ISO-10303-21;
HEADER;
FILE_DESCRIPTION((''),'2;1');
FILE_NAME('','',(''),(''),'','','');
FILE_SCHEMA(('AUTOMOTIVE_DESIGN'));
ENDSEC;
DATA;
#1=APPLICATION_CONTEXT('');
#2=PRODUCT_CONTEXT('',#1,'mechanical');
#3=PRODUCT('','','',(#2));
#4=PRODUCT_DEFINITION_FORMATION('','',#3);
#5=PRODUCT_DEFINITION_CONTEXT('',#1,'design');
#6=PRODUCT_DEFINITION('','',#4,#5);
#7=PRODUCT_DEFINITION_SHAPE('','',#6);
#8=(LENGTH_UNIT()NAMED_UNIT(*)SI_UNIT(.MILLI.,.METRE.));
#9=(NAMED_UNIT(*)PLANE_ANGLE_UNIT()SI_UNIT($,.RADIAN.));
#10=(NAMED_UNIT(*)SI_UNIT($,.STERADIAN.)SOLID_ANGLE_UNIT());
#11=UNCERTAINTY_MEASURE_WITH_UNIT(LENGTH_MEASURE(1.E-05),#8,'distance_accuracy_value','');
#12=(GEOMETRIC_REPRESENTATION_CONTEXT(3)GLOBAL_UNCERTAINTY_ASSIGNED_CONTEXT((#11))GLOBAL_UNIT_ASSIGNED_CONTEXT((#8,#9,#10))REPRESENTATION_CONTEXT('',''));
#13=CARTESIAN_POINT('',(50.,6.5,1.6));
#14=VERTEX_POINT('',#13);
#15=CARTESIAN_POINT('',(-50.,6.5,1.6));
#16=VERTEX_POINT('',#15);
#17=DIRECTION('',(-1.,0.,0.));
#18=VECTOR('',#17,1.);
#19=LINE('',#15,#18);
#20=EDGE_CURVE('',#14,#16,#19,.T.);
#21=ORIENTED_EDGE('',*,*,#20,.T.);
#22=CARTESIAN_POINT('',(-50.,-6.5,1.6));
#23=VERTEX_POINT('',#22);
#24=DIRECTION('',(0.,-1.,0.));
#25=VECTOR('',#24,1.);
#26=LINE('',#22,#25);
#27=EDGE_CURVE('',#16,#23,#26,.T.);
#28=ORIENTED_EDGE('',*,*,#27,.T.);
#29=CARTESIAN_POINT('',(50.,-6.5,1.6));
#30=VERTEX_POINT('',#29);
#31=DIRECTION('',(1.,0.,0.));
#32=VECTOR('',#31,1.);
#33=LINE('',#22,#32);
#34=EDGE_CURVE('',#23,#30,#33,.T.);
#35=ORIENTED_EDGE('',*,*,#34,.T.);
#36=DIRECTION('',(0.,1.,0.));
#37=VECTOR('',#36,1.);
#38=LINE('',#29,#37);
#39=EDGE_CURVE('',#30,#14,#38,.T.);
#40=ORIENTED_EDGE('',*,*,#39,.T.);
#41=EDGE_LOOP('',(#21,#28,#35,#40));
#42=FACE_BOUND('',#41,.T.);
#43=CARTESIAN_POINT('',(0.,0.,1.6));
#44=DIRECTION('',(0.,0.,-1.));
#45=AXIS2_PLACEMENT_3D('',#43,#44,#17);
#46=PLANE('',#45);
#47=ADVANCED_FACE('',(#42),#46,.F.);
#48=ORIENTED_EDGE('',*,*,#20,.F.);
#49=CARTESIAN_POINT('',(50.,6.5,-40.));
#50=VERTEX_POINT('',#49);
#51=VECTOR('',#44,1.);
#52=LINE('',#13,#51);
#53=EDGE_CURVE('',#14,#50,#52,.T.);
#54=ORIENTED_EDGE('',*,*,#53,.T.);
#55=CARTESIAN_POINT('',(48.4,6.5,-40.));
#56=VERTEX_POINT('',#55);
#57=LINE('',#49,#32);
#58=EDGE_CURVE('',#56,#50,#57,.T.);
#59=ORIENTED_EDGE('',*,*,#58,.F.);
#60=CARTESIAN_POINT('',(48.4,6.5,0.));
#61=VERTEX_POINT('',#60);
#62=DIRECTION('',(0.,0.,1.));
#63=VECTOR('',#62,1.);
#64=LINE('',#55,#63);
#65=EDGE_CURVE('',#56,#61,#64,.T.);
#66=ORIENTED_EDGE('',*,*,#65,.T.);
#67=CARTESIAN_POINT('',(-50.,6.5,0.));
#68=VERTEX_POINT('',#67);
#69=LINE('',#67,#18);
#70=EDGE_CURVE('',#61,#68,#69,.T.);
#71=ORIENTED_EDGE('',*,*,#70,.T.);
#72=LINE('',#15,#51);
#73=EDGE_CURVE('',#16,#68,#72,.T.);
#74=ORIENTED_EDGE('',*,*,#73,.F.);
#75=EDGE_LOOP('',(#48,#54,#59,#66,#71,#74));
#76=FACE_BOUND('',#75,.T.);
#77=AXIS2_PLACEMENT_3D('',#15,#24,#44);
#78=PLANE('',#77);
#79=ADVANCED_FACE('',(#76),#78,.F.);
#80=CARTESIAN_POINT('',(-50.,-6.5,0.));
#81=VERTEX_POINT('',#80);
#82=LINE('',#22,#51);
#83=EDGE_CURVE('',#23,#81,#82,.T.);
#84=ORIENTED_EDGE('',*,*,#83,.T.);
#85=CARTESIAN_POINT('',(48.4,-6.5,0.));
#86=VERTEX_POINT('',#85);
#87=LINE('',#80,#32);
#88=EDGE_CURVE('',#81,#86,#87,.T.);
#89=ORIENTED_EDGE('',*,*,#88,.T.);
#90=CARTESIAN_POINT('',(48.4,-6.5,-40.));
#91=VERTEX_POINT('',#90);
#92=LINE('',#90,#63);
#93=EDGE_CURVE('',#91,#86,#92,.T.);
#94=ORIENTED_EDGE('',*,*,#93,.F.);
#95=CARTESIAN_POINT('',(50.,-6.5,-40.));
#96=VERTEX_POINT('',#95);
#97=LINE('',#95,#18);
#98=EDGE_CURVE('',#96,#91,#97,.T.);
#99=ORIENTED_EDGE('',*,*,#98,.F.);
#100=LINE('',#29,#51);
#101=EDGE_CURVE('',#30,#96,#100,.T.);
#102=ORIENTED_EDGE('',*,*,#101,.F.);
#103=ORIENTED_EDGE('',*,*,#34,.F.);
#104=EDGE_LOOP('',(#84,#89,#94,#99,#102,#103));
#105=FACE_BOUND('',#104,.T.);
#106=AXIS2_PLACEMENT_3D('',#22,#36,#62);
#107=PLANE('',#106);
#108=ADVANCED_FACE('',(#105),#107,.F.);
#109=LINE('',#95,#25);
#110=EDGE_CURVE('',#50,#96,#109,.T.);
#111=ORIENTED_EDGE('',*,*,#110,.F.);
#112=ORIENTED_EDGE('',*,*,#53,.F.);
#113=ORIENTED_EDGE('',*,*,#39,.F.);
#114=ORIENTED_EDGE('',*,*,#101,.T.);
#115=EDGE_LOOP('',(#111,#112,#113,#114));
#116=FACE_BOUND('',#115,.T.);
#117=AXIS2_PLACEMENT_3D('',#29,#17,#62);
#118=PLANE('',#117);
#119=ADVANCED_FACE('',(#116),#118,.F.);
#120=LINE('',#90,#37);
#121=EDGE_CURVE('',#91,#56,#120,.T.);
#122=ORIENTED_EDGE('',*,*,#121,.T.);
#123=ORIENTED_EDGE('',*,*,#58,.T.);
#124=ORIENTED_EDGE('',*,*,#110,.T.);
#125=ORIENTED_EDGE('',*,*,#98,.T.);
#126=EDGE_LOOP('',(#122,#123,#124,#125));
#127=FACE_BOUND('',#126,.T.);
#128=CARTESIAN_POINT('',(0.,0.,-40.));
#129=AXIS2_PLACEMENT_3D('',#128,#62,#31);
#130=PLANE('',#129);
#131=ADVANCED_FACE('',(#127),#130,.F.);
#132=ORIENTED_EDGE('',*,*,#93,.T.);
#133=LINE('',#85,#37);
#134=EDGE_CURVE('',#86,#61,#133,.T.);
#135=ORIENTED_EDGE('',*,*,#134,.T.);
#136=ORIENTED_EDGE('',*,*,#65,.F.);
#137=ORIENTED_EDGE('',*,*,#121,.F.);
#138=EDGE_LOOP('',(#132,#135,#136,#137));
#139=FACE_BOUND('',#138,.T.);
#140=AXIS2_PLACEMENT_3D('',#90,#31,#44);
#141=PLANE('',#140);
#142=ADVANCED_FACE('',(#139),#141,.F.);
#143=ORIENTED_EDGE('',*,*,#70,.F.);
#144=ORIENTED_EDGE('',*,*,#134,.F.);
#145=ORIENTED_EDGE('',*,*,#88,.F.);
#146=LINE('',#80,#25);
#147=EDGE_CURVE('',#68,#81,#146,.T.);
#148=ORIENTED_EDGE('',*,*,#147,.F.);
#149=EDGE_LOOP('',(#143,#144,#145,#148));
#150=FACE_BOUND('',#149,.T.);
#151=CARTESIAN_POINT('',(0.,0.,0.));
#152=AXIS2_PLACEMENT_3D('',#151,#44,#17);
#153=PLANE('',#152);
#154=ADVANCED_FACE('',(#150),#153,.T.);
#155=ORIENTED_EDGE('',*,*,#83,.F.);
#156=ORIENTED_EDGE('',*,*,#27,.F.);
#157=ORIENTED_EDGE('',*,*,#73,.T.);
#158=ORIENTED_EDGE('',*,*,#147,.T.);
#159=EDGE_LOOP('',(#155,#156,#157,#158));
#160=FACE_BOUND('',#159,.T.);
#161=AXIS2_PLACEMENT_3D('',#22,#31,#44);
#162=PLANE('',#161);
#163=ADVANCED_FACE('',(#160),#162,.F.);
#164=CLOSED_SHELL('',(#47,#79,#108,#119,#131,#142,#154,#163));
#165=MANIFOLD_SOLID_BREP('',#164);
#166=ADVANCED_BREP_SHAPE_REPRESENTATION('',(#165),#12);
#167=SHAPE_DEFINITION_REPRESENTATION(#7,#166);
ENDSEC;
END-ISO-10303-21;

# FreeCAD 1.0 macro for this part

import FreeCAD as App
import Part
import Sketcher
from FreeCAD import Vector
Q = App.Units.Quantity

doc = App.newDocument("Part")
body = doc.addObject("PartDesign::Body", "Body")

# Sketch on XY plane
sketch1 = body.newObject("Sketcher::SketchObject", "Sketch")
sketch1.AttachmentSupport = (doc.getObject("XY_Plane"), [""])
sketch1.MapMode = "FlatFace"
sketch1.addGeometry(Part.LineSegment(Vector(-50, 6.5, 0), Vector(-50, -6.5, 0)), False)
sketch1.addGeometry(Part.LineSegment(Vector(-50, -6.5, 0), Vector(50, -6.5, 0)), False)
sketch1.addGeometry(Part.LineSegment(Vector(50, -6.5, 0), Vector(50, 6.5, 0)), False)
sketch1.addGeometry(Part.LineSegment(Vector(50, 6.5, 0), Vector(-50, 6.5, 0)), False)
sketch1.addConstraint(Sketcher.Constraint("Coincident", 0, 2, 1, 1))
sketch1.addConstraint(Sketcher.Constraint("Coincident", 1, 2, 2, 1))
sketch1.addConstraint(Sketcher.Constraint("Coincident", 2, 2, 3, 1))
sketch1.addConstraint(Sketcher.Constraint("Coincident", 3, 2, 0, 1))
sketch1.addConstraint(Sketcher.Constraint("Vertical", 0))
sketch1.addConstraint(Sketcher.Constraint("Horizontal", 1))
sketch1.addConstraint(Sketcher.Constraint("Vertical", 2))
sketch1.addConstraint(Sketcher.Constraint("Horizontal", 3))
sketch1.addConstraint(Sketcher.Constraint("Symmetric", 0, 2, 2, 2, -1, 1))
sketch1.addConstraint(Sketcher.Constraint("DistanceX", 1, 1, 1, 2, Q("100 mm")))
sketch1.addConstraint(Sketcher.Constraint("DistanceY", 0, 2, 0, 1, Q("13 mm")))
pad1 = body.newObject("PartDesign::Pad", "Pad")
pad1.Profile = sketch1
pad1.Length = 1.6

# Sketch on XY plane
sketch2 = body.newObject("Sketcher::SketchObject", "Sketch001")
sketch2.AttachmentSupport = (doc.getObject("XY_Plane"), [""])
sketch2.MapMode = "FlatFace"
sketch2.addGeometry(Part.LineSegment(Vector(50, 6.5, 0), Vector(50, -6.5, 0)), False)
sketch2.addGeometry(Part.LineSegment(Vector(50, -6.5, 0), Vector(48.4, -6.5, 0)), False)
sketch2.addGeometry(Part.LineSegment(Vector(48.4, -6.5, 0), Vector(48.4, 6.5, 0)), False)
sketch2.addGeometry(Part.LineSegment(Vector(48.4, 6.5, 0), Vector(50, 6.5, 0)), False)
sketch2.addConstraint(Sketcher.Constraint("Coincident", 0, 2, 1, 1))
sketch2.addConstraint(Sketcher.Constraint("Coincident", 1, 2, 2, 1))
sketch2.addConstraint(Sketcher.Constraint("Coincident", 2, 2, 3, 1))
sketch2.addConstraint(Sketcher.Constraint("Coincident", 3, 2, 0, 1))
sketch2.addConstraint(Sketcher.Constraint("Vertical", 0))
sketch2.addConstraint(Sketcher.Constraint("Horizontal", 1))
sketch2.addConstraint(Sketcher.Constraint("Vertical", 2))
sketch2.addConstraint(Sketcher.Constraint("Horizontal", 3))
sketch2.addConstraint(Sketcher.Constraint("DistanceY", 0, 2, 0, 1, Q("13 mm")))
sketch2.addConstraint(Sketcher.Constraint("DistanceX", 1, 2, 1, 1, Q("1.6 mm")))
sketch2.addConstraint(Sketcher.Constraint("DistanceX", -1, 1, 0, 2, Q("50 mm")))
sketch2.addConstraint(Sketcher.Constraint("DistanceY", 0, 2, -1, 1, Q("6.5 mm")))
pad2 = body.newObject("PartDesign::Pad", "Pad001")
pad2.Profile = sketch2
pad2.Length = 40
pad2.Reversed = True

doc.recompute()
